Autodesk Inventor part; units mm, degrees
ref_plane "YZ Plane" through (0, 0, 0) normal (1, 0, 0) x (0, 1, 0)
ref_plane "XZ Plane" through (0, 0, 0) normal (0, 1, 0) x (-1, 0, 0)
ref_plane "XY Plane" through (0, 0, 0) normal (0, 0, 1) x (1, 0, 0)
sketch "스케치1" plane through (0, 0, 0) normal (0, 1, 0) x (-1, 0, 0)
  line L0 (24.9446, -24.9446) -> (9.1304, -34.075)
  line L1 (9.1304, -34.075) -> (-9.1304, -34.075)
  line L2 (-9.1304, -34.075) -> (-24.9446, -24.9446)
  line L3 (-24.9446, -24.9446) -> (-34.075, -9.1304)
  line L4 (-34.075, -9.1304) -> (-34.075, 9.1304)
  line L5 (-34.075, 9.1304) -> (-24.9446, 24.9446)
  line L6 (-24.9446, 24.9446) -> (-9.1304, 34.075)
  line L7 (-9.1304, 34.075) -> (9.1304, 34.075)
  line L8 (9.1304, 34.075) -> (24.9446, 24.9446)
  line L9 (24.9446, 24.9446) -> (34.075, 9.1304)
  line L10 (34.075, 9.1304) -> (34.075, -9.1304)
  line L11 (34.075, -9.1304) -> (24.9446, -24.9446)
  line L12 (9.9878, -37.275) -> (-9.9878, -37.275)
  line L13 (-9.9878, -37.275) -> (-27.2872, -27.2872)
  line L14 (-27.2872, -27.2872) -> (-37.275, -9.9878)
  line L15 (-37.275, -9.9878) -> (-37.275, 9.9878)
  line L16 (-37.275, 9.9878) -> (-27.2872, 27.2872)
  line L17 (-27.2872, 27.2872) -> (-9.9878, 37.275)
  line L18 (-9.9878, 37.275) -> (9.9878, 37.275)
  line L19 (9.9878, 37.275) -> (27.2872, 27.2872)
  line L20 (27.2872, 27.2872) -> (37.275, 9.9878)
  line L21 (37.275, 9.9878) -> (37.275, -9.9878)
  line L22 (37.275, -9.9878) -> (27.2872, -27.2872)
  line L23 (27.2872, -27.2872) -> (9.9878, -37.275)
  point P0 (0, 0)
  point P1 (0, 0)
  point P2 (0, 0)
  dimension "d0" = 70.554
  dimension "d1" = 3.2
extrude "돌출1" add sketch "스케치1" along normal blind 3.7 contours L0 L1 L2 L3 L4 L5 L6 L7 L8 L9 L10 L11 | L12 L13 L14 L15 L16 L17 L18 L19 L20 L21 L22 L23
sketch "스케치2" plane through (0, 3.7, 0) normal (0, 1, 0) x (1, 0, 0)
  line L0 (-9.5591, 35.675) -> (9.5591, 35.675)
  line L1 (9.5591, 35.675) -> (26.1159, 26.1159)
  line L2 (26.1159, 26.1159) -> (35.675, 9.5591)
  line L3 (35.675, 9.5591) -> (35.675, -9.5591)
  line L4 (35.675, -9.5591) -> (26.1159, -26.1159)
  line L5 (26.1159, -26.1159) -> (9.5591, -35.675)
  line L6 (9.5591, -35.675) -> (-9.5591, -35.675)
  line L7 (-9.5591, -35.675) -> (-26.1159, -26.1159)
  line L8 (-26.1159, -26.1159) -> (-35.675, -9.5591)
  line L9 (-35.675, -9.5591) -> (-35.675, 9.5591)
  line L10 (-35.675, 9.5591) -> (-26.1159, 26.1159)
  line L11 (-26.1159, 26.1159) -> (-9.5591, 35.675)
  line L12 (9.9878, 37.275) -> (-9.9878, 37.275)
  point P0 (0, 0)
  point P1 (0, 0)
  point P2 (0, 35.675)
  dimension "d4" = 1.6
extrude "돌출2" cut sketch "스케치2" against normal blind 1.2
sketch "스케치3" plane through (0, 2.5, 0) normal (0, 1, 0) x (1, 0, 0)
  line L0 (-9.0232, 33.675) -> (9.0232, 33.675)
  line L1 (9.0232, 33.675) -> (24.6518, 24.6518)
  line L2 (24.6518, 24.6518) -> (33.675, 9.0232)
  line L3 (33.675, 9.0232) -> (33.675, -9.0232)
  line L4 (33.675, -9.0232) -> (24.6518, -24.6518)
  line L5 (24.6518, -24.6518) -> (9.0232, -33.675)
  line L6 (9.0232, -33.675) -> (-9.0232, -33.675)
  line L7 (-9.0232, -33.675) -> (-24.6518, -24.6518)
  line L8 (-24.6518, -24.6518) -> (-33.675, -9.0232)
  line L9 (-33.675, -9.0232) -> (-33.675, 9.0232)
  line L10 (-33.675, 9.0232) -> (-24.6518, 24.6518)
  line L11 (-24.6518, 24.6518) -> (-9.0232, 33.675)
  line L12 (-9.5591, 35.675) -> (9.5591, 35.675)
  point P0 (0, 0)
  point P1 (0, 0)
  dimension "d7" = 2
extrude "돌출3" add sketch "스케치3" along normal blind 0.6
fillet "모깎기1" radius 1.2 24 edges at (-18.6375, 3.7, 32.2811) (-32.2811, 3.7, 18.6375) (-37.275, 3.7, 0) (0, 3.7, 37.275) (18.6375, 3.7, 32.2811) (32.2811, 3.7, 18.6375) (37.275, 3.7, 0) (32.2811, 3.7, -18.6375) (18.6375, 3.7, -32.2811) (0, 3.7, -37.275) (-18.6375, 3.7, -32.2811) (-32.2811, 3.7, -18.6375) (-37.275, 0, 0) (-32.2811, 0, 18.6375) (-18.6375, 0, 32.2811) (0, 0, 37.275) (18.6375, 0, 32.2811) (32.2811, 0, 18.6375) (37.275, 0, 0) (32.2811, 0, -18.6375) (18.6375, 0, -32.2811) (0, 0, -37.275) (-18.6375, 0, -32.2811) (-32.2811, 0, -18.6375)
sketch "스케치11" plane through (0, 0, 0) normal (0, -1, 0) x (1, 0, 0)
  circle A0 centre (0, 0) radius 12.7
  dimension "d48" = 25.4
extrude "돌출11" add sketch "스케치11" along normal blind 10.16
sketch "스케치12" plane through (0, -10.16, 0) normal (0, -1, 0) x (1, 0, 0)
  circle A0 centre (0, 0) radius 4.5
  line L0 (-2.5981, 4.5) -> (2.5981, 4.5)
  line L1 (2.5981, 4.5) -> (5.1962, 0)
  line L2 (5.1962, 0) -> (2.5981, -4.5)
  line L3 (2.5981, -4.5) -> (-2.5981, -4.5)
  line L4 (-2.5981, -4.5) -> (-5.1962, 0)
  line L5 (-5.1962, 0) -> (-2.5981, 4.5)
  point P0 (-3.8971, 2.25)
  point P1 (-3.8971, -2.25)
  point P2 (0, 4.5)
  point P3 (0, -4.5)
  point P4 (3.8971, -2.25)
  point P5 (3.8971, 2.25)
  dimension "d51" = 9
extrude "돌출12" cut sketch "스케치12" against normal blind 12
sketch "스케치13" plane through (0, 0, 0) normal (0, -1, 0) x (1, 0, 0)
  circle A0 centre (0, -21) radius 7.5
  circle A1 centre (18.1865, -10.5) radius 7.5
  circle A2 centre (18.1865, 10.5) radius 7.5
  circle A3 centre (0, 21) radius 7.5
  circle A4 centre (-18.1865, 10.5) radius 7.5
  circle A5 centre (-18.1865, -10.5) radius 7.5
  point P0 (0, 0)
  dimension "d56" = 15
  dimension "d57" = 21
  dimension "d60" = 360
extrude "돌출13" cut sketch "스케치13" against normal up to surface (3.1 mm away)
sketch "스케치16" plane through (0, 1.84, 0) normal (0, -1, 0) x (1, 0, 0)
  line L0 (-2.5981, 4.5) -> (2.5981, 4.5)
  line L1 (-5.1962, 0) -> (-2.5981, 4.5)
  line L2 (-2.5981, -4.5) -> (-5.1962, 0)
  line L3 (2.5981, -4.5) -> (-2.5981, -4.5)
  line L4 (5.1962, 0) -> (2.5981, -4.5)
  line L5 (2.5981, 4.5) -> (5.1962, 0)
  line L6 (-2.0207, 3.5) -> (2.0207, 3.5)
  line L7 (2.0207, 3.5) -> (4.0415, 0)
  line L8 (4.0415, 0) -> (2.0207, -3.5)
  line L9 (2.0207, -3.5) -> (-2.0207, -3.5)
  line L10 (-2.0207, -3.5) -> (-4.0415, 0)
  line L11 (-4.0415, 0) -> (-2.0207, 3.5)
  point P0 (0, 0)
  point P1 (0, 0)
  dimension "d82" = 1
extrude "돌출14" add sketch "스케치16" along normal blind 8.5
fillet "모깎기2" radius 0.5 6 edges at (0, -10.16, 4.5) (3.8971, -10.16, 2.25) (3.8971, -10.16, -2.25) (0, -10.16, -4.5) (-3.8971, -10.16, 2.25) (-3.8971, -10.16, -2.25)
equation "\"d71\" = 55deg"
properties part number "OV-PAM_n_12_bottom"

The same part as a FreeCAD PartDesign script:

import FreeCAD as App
import Part
import Sketcher
from FreeCAD import Vector
Q = App.Units.Quantity


def edges_at(feature, points):
    """Names of the edges that pass closest to the given points."""
    edges = feature.Shape.Edges
    near = lambda p: min(range(len(edges)), key=lambda i: edges[i].distToShape(Part.Vertex(*p))[0])
    return sorted({f"Edge{near(p) + 1}" for p in points})

doc = App.newDocument("Part")
body = doc.addObject("PartDesign::Body", "Body")

# Sketch on XZ plane
sketch1 = body.newObject("Sketcher::SketchObject", "Sketch")
sketch1.AttachmentSupport = (doc.getObject("XZ_Plane"), [""])
sketch1.MapMode = "FlatFace"
sketch1.addGeometry(Part.LineSegment(Vector(10, -37, 0), Vector(-10, -37, 0)), False)
sketch1.addGeometry(Part.LineSegment(Vector(-10, -37, 0), Vector(-27, -27, 0)), False)
sketch1.addGeometry(Part.LineSegment(Vector(-27, -27, 0), Vector(-37, -10, 0)), False)
sketch1.addGeometry(Part.LineSegment(Vector(-37, -10, 0), Vector(-37, 10, 0)), False)
sketch1.addGeometry(Part.LineSegment(Vector(-37, 10, 0), Vector(-27, 27, 0)), False)
sketch1.addGeometry(Part.LineSegment(Vector(-27, 27, 0), Vector(-10, 37, 0)), False)
sketch1.addGeometry(Part.LineSegment(Vector(-10, 37, 0), Vector(10, 37, 0)), False)
sketch1.addGeometry(Part.LineSegment(Vector(10, 37, 0), Vector(27, 27, 0)), False)
sketch1.addGeometry(Part.LineSegment(Vector(27, 27, 0), Vector(37, 10, 0)), False)
sketch1.addGeometry(Part.LineSegment(Vector(37, 10, 0), Vector(37, -10, 0)), False)
sketch1.addGeometry(Part.LineSegment(Vector(37, -10, 0), Vector(27, -27, 0)), False)
sketch1.addGeometry(Part.LineSegment(Vector(27, -27, 0), Vector(10, -37, 0)), False)
sketch1.addConstraint(Sketcher.Constraint("Coincident", 0, 2, 1, 1))
sketch1.addConstraint(Sketcher.Constraint("Coincident", 1, 2, 2, 1))
sketch1.addConstraint(Sketcher.Constraint("Coincident", 2, 2, 3, 1))
sketch1.addConstraint(Sketcher.Constraint("Coincident", 3, 2, 4, 1))
sketch1.addConstraint(Sketcher.Constraint("Coincident", 4, 2, 5, 1))
sketch1.addConstraint(Sketcher.Constraint("Coincident", 5, 2, 6, 1))
sketch1.addConstraint(Sketcher.Constraint("Coincident", 6, 2, 7, 1))
sketch1.addConstraint(Sketcher.Constraint("Coincident", 7, 2, 8, 1))
sketch1.addConstraint(Sketcher.Constraint("Coincident", 8, 2, 9, 1))
sketch1.addConstraint(Sketcher.Constraint("Coincident", 9, 2, 10, 1))
sketch1.addConstraint(Sketcher.Constraint("Coincident", 10, 2, 11, 1))
sketch1.addConstraint(Sketcher.Constraint("Coincident", 11, 2, 0, 1))
sketch1.addConstraint(Sketcher.Constraint("Horizontal", 0))
sketch1.addConstraint(Sketcher.Constraint("Vertical", 3))
sketch1.addConstraint(Sketcher.Constraint("Horizontal", 6))
sketch1.addConstraint(Sketcher.Constraint("Vertical", 9))
sketch1.addConstraint(Sketcher.Constraint("Symmetric", 0, 2, 6, 2, -1, 1))
sketch1.addConstraint(Sketcher.Constraint("Symmetric", 1, 2, 7, 2, -1, 1))
sketch1.addConstraint(Sketcher.Constraint("Symmetric", 2, 2, 8, 2, -1, 1))
sketch1.addConstraint(Sketcher.Constraint("Symmetric", 4, 2, 10, 2, -1, 1))
sketch1.addConstraint(Sketcher.Constraint("Symmetric", 4, 2, 7, 2, -2))
sketch1.addConstraint(Sketcher.Constraint("Perpendicular", 1, 4))
sketch1.addConstraint(Sketcher.Constraint("Perpendicular", 2, 5))
sketch1.addConstraint(Sketcher.Constraint("Perpendicular", 7, 10))
sketch1.addConstraint(Sketcher.Constraint("Perpendicular", 8, 11))
sketch1.addConstraint(Sketcher.Constraint("Horizontal", 3, 2, 8, 2))
sketch1.addConstraint(Sketcher.Constraint("Equal", 6, 3))
sketch1.addConstraint(Sketcher.Constraint("Equal", 1, 2))
sketch1.addConstraint(Sketcher.Constraint("Angle", 1, Q("150 deg")))
sketch1.addConstraint(Sketcher.Constraint("DistanceY", 0, 2, 5, 2, 74.55))
sketch1.addConstraint(Sketcher.Constraint("DistanceX", 0, 2, 0, 1, 19.9756))
pad1 = body.newObject("PartDesign::Pad", "Pad")
pad1.Profile = sketch1
pad1.Length = 3.7
pad1.Reversed = True

# Sketch on XZ plane
sketch2 = body.newObject("Sketcher::SketchObject", "Sketch001")
sketch2.AttachmentSupport = (doc.getObject("XZ_Plane"), [""])
sketch2.MapMode = "FlatFace"
sketch2.AttachmentOffset = App.Placement(Vector(0, 0, -3.7), App.Rotation())
sketch2.addGeometry(Part.LineSegment(Vector(10, -36, 0), Vector(-10, -36, 0)), False)
sketch2.addGeometry(Part.LineSegment(Vector(-10, -36, 0), Vector(-26, -26, 0)), False)
sketch2.addGeometry(Part.LineSegment(Vector(-26, -26, 0), Vector(-36, -10, 0)), False)
sketch2.addGeometry(Part.LineSegment(Vector(-36, -10, 0), Vector(-36, 10, 0)), False)
sketch2.addGeometry(Part.LineSegment(Vector(-36, 10, 0), Vector(-26, 26, 0)), False)
sketch2.addGeometry(Part.LineSegment(Vector(-26, 26, 0), Vector(-10, 36, 0)), False)
sketch2.addGeometry(Part.LineSegment(Vector(-10, 36, 0), Vector(10, 36, 0)), False)
sketch2.addGeometry(Part.LineSegment(Vector(10, 36, 0), Vector(26, 26, 0)), False)
sketch2.addGeometry(Part.LineSegment(Vector(26, 26, 0), Vector(36, 10, 0)), False)
sketch2.addGeometry(Part.LineSegment(Vector(36, 10, 0), Vector(36, -10, 0)), False)
sketch2.addGeometry(Part.LineSegment(Vector(36, -10, 0), Vector(26, -26, 0)), False)
sketch2.addGeometry(Part.LineSegment(Vector(26, -26, 0), Vector(10, -36, 0)), False)
sketch2.addConstraint(Sketcher.Constraint("Coincident", 0, 2, 1, 1))
sketch2.addConstraint(Sketcher.Constraint("Coincident", 1, 2, 2, 1))
sketch2.addConstraint(Sketcher.Constraint("Coincident", 2, 2, 3, 1))
sketch2.addConstraint(Sketcher.Constraint("Coincident", 3, 2, 4, 1))
sketch2.addConstraint(Sketcher.Constraint("Coincident", 4, 2, 5, 1))
sketch2.addConstraint(Sketcher.Constraint("Coincident", 5, 2, 6, 1))
sketch2.addConstraint(Sketcher.Constraint("Coincident", 6, 2, 7, 1))
sketch2.addConstraint(Sketcher.Constraint("Coincident", 7, 2, 8, 1))
sketch2.addConstraint(Sketcher.Constraint("Coincident", 8, 2, 9, 1))
sketch2.addConstraint(Sketcher.Constraint("Coincident", 9, 2, 10, 1))
sketch2.addConstraint(Sketcher.Constraint("Coincident", 10, 2, 11, 1))
sketch2.addConstraint(Sketcher.Constraint("Coincident", 11, 2, 0, 1))
sketch2.addConstraint(Sketcher.Constraint("Horizontal", 0))
sketch2.addConstraint(Sketcher.Constraint("Vertical", 3))
sketch2.addConstraint(Sketcher.Constraint("Horizontal", 6))
sketch2.addConstraint(Sketcher.Constraint("Vertical", 9))
sketch2.addConstraint(Sketcher.Constraint("Symmetric", 0, 2, 6, 2, -1, 1))
sketch2.addConstraint(Sketcher.Constraint("Symmetric", 1, 2, 7, 2, -1, 1))
sketch2.addConstraint(Sketcher.Constraint("Symmetric", 2, 2, 8, 2, -1, 1))
sketch2.addConstraint(Sketcher.Constraint("Symmetric", 4, 2, 10, 2, -1, 1))
sketch2.addConstraint(Sketcher.Constraint("Symmetric", 4, 2, 7, 2, -2))
sketch2.addConstraint(Sketcher.Constraint("Perpendicular", 1, 4))
sketch2.addConstraint(Sketcher.Constraint("Perpendicular", 2, 5))
sketch2.addConstraint(Sketcher.Constraint("Perpendicular", 7, 10))
sketch2.addConstraint(Sketcher.Constraint("Perpendicular", 8, 11))
sketch2.addConstraint(Sketcher.Constraint("Horizontal", 3, 2, 8, 2))
sketch2.addConstraint(Sketcher.Constraint("Equal", 6, 3))
sketch2.addConstraint(Sketcher.Constraint("Equal", 1, 2))
sketch2.addConstraint(Sketcher.Constraint("Angle", 1, Q("150 deg")))
sketch2.addConstraint(Sketcher.Constraint("DistanceY", 0, 2, 5, 2, 71.35))
sketch2.addConstraint(Sketcher.Constraint("DistanceX", 0, 2, 0, 1, 19.1182))
pocket1 = body.newObject("PartDesign::Pocket", "Pocket")
pocket1.Profile = sketch2
pocket1.Length = 1.2
pocket1.Reversed = True

# Sketch on XZ plane
sketch3 = body.newObject("Sketcher::SketchObject", "Sketch002")
sketch3.AttachmentSupport = (doc.getObject("XZ_Plane"), [""])
sketch3.MapMode = "FlatFace"
sketch3.AttachmentOffset = App.Placement(Vector(0, 0, -2.5), App.Rotation())
sketch3.addGeometry(Part.LineSegment(Vector(9, -34, 0), Vector(-9, -34, 0)), False)
sketch3.addGeometry(Part.LineSegment(Vector(-9, -34, 0), Vector(-25, -25, 0)), False)
sketch3.addGeometry(Part.LineSegment(Vector(-25, -25, 0), Vector(-34, -9, 0)), False)
sketch3.addGeometry(Part.LineSegment(Vector(-34, -9, 0), Vector(-34, 9, 0)), False)
sketch3.addGeometry(Part.LineSegment(Vector(-34, 9, 0), Vector(-25, 25, 0)), False)
sketch3.addGeometry(Part.LineSegment(Vector(-25, 25, 0), Vector(-9, 34, 0)), False)
sketch3.addGeometry(Part.LineSegment(Vector(-9, 34, 0), Vector(9, 34, 0)), False)
sketch3.addGeometry(Part.LineSegment(Vector(9, 34, 0), Vector(25, 25, 0)), False)
sketch3.addGeometry(Part.LineSegment(Vector(25, 25, 0), Vector(34, 9, 0)), False)
sketch3.addGeometry(Part.LineSegment(Vector(34, 9, 0), Vector(34, -9, 0)), False)
sketch3.addGeometry(Part.LineSegment(Vector(34, -9, 0), Vector(25, -25, 0)), False)
sketch3.addGeometry(Part.LineSegment(Vector(25, -25, 0), Vector(9, -34, 0)), False)
sketch3.addConstraint(Sketcher.Constraint("Coincident", 0, 2, 1, 1))
sketch3.addConstraint(Sketcher.Constraint("Coincident", 1, 2, 2, 1))
sketch3.addConstraint(Sketcher.Constraint("Coincident", 2, 2, 3, 1))
sketch3.addConstraint(Sketcher.Constraint("Coincident", 3, 2, 4, 1))
sketch3.addConstraint(Sketcher.Constraint("Coincident", 4, 2, 5, 1))
sketch3.addConstraint(Sketcher.Constraint("Coincident", 5, 2, 6, 1))
sketch3.addConstraint(Sketcher.Constraint("Coincident", 6, 2, 7, 1))
sketch3.addConstraint(Sketcher.Constraint("Coincident", 7, 2, 8, 1))
sketch3.addConstraint(Sketcher.Constraint("Coincident", 8, 2, 9, 1))
sketch3.addConstraint(Sketcher.Constraint("Coincident", 9, 2, 10, 1))
sketch3.addConstraint(Sketcher.Constraint("Coincident", 10, 2, 11, 1))
sketch3.addConstraint(Sketcher.Constraint("Coincident", 11, 2, 0, 1))
sketch3.addConstraint(Sketcher.Constraint("Horizontal", 0))
sketch3.addConstraint(Sketcher.Constraint("Vertical", 3))
sketch3.addConstraint(Sketcher.Constraint("Horizontal", 6))
sketch3.addConstraint(Sketcher.Constraint("Vertical", 9))
sketch3.addConstraint(Sketcher.Constraint("Symmetric", 0, 2, 6, 2, -1, 1))
sketch3.addConstraint(Sketcher.Constraint("Symmetric", 1, 2, 7, 2, -1, 1))
sketch3.addConstraint(Sketcher.Constraint("Symmetric", 2, 2, 8, 2, -1, 1))
sketch3.addConstraint(Sketcher.Constraint("Symmetric", 4, 2, 10, 2, -1, 1))
sketch3.addConstraint(Sketcher.Constraint("Symmetric", 4, 2, 7, 2, -2))
sketch3.addConstraint(Sketcher.Constraint("Perpendicular", 1, 4))
sketch3.addConstraint(Sketcher.Constraint("Perpendicular", 2, 5))
sketch3.addConstraint(Sketcher.Constraint("Perpendicular", 7, 10))
sketch3.addConstraint(Sketcher.Constraint("Perpendicular", 8, 11))
sketch3.addConstraint(Sketcher.Constraint("Horizontal", 3, 2, 8, 2))
sketch3.addConstraint(Sketcher.Constraint("Equal", 6, 3))
sketch3.addConstraint(Sketcher.Constraint("Equal", 1, 2))
sketch3.addConstraint(Sketcher.Constraint("Angle", 1, Q("150 deg")))
sketch3.addConstraint(Sketcher.Constraint("DistanceY", 0, 2, 5, 2, 67.35))
sketch3.addConstraint(Sketcher.Constraint("DistanceX", 0, 2, 0, 1, 18.0464))
pad2 = body.newObject("PartDesign::Pad", "Pad001")
pad2.Profile = sketch3
pad2.Length = 0.6
pad2.Reversed = True
doc.recompute()

fillet = body.newObject("PartDesign::Fillet", "Fillet")
fillet.Base = (pad2, edges_at(pad2, [
    (-18.637, 3.7, 32.281),
    (-32.281, 3.7, 18.637),
    (-37.275, 3.7, 0),
    (0, 3.7, 37.275),
    (18.637, 3.7, 32.281),
    (32.281, 3.7, 18.637),
    (37.275, 3.7, 0),
    (32.281, 3.7, -18.637),
    (18.637, 3.7, -32.281),
    (0, 3.7, -37.275),
    (-18.637, 3.7, -32.281),
    (-32.281, 3.7, -18.637),
    (-37.275, 0, 0),
    (-32.281, 0, 18.637),
    (-18.637, 0, 32.281),
    (0, 0, 37.275),
    (18.637, 0, 32.281),
    (32.281, 0, 18.637),
    (37.275, 0, 0),
    (32.281, 0, -18.637),
    (18.637, 0, -32.281),
    (0, 0, -37.275),
    (-18.637, 0, -32.281),
    (-32.281, 0, -18.637),
]))
fillet.Radius = 1.2

# Sketch on XZ plane
sketch4 = body.newObject("Sketcher::SketchObject", "Sketch003")
sketch4.AttachmentSupport = (doc.getObject("XZ_Plane"), [""])
sketch4.MapMode = "FlatFace"
sketch4.addGeometry(Part.Circle(Vector(0, 0, 0), Vector(0, 0, 1), 13), False)
sketch4.addConstraint(Sketcher.Constraint("Coincident", 0, 3, -1, 1))
sketch4.addConstraint(Sketcher.Constraint("Diameter", 0, 25.4))
pad3 = body.newObject("PartDesign::Pad", "Pad002")
pad3.Profile = sketch4
pad3.Length = 10.16

# Sketch on XZ plane
sketch5 = body.newObject("Sketcher::SketchObject", "Sketch004")
sketch5.AttachmentSupport = (doc.getObject("XZ_Plane"), [""])
sketch5.MapMode = "FlatFace"
sketch5.AttachmentOffset = App.Placement(Vector(0, 0, 10.16), App.Rotation())
sketch5.addGeometry(Part.LineSegment(Vector(5, 0, 0), Vector(3, 4, 0)), False)
sketch5.addGeometry(Part.LineSegment(Vector(3, 4, 0), Vector(-3, 4, 0)), False)
sketch5.addGeometry(Part.LineSegment(Vector(-3, 4, 0), Vector(-5, 0, 0)), False)
sketch5.addGeometry(Part.LineSegment(Vector(-5, 0, 0), Vector(-3, -4, 0)), False)
sketch5.addGeometry(Part.LineSegment(Vector(-3, -4, 0), Vector(3, -4, 0)), False)
sketch5.addGeometry(Part.LineSegment(Vector(3, -4, 0), Vector(5, 0, 0)), False)
sketch5.addConstraint(Sketcher.Constraint("Coincident", 0, 2, 1, 1))
sketch5.addConstraint(Sketcher.Constraint("Coincident", 1, 2, 2, 1))
sketch5.addConstraint(Sketcher.Constraint("Coincident", 2, 2, 3, 1))
sketch5.addConstraint(Sketcher.Constraint("Coincident", 3, 2, 4, 1))
sketch5.addConstraint(Sketcher.Constraint("Coincident", 4, 2, 5, 1))
sketch5.addConstraint(Sketcher.Constraint("Coincident", 5, 2, 0, 1))
sketch5.addConstraint(Sketcher.Constraint("Horizontal", 1))
sketch5.addConstraint(Sketcher.Constraint("Horizontal", 4))
sketch5.addConstraint(Sketcher.Constraint("Symmetric", 0, 2, 3, 2, -1, 1))
sketch5.addConstraint(Sketcher.Constraint("Symmetric", 2, 2, 5, 2, -1, 1))
sketch5.addConstraint(Sketcher.Constraint("PointOnObject", 2, 2, -1))
sketch5.addConstraint(Sketcher.Constraint("Parallel", 2, 5))
sketch5.addConstraint(Sketcher.Constraint("Vertical", 1, 2, 3, 2))
sketch5.addConstraint(Sketcher.Constraint("DistanceY", 3, 2, 1, 2, 9.0))
sketch5.addConstraint(Sketcher.Constraint("Angle", 0, Q("120.0002 deg")))
sketch5.addConstraint(Sketcher.Constraint("DistanceX", 1, 2, 1, 1, 5.1962))
pocket2 = body.newObject("PartDesign::Pocket", "Pocket001")
pocket2.Profile = sketch5
pocket2.Length = 12

# Sketch on XZ plane
sketch6 = body.newObject("Sketcher::SketchObject", "Sketch005")
sketch6.AttachmentSupport = (doc.getObject("XZ_Plane"), [""])
sketch6.MapMode = "FlatFace"
sketch6.addGeometry(Part.Circle(Vector(0, -21, 0), Vector(0, 0, 1), 8), False)
sketch6.addGeometry(Part.Circle(Vector(18, -10, 0), Vector(0, 0, 1), 8), False)
sketch6.addGeometry(Part.Circle(Vector(18, 10, 0), Vector(0, 0, 1), 8), False)
sketch6.addGeometry(Part.Circle(Vector(0, 21, 0), Vector(0, 0, 1), 8), False)
sketch6.addGeometry(Part.Circle(Vector(-18, 10, 0), Vector(0, 0, 1), 8), False)
sketch6.addGeometry(Part.Circle(Vector(-18, -10, 0), Vector(0, 0, 1), 8), False)
sketch6.addConstraint(Sketcher.Constraint("Equal", 0, 1))
sketch6.addConstraint(Sketcher.Constraint("Equal", 1, 2))
sketch6.addConstraint(Sketcher.Constraint("Equal", 2, 3))
sketch6.addConstraint(Sketcher.Constraint("Equal", 3, 4))
sketch6.addConstraint(Sketcher.Constraint("Equal", 4, 5))
sketch6.addConstraint(Sketcher.Constraint("Symmetric", 0, 3, 3, 3, -1, 1))
sketch6.addConstraint(Sketcher.Constraint("Symmetric", 1, 3, 4, 3, -1, 1))
sketch6.addConstraint(Sketcher.Constraint("Symmetric", 2, 3, 5, 3, -1, 1))
sketch6.addConstraint(Sketcher.Constraint("Symmetric", 2, 3, 4, 3, -2))
sketch6.addConstraint(Sketcher.Constraint("PointOnObject", 0, 3, -2))
sketch6.addConstraint(Sketcher.Constraint("Diameter", 0, 15.0))
sketch6.addConstraint(Sketcher.Constraint("DistanceY", 0, 3, -1, 1, 21.0))
sketch6.addConstraint(Sketcher.Constraint("DistanceY", 1, 3, 2, 3, 21.0))
sketch6.addConstraint(Sketcher.Constraint("DistanceX", 4, 3, 2, 3, 36.373))
pocket3 = body.newObject("PartDesign::Pocket", "Pocket002")
pocket3.Profile = sketch6
pocket3.Length = 3.1

# Sketch on XZ plane
sketch7 = body.newObject("Sketcher::SketchObject", "Sketch006")
sketch7.AttachmentSupport = (doc.getObject("XZ_Plane"), [""])
sketch7.MapMode = "FlatFace"
sketch7.AttachmentOffset = App.Placement(Vector(0, 0, -1.84), App.Rotation())
sketch7.addGeometry(Part.LineSegment(Vector(2.6, 4.5, 0), Vector(-2.6, 4.5, 0)), False)
sketch7.addGeometry(Part.LineSegment(Vector(-2.6, 4.5, 0), Vector(-5.2, 0, 0)), False)
sketch7.addGeometry(Part.LineSegment(Vector(-5.2, 0, 0), Vector(-2.6, -4.5, 0)), False)
sketch7.addGeometry(Part.LineSegment(Vector(-2.6, -4.5, 0), Vector(2.6, -4.5, 0)), False)
sketch7.addGeometry(Part.LineSegment(Vector(2.6, -4.5, 0), Vector(5.2, 0, 0)), False)
sketch7.addGeometry(Part.LineSegment(Vector(5.2, 0, 0), Vector(2.6, 4.5, 0)), False)
sketch7.addGeometry(Part.LineSegment(Vector(-4, 0, 0), Vector(-2, 3.5, 0)), False)
sketch7.addGeometry(Part.LineSegment(Vector(-2, 3.5, 0), Vector(2, 3.5, 0)), False)
sketch7.addGeometry(Part.LineSegment(Vector(2, 3.5, 0), Vector(4, 0, 0)), False)
sketch7.addGeometry(Part.LineSegment(Vector(4, 0, 0), Vector(2, -3.5, 0)), False)
sketch7.addGeometry(Part.LineSegment(Vector(2, -3.5, 0), Vector(-2, -3.5, 0)), False)
sketch7.addGeometry(Part.LineSegment(Vector(-2, -3.5, 0), Vector(-4, 0, 0)), False)
sketch7.addConstraint(Sketcher.Constraint("Coincident", 0, 2, 1, 1))
sketch7.addConstraint(Sketcher.Constraint("Coincident", 1, 2, 2, 1))
sketch7.addConstraint(Sketcher.Constraint("Coincident", 2, 2, 3, 1))
sketch7.addConstraint(Sketcher.Constraint("Coincident", 3, 2, 4, 1))
sketch7.addConstraint(Sketcher.Constraint("Coincident", 4, 2, 5, 1))
sketch7.addConstraint(Sketcher.Constraint("Coincident", 5, 2, 0, 1))
sketch7.addConstraint(Sketcher.Constraint("Coincident", 6, 2, 7, 1))
sketch7.addConstraint(Sketcher.Constraint("Coincident", 7, 2, 8, 1))
sketch7.addConstraint(Sketcher.Constraint("Coincident", 8, 2, 9, 1))
sketch7.addConstraint(Sketcher.Constraint("Coincident", 9, 2, 10, 1))
sketch7.addConstraint(Sketcher.Constraint("Coincident", 10, 2, 11, 1))
sketch7.addConstraint(Sketcher.Constraint("Coincident", 11, 2, 6, 1))
sketch7.addConstraint(Sketcher.Constraint("Horizontal", 0))
sketch7.addConstraint(Sketcher.Constraint("Horizontal", 3))
sketch7.addConstraint(Sketcher.Constraint("Horizontal", 7))
sketch7.addConstraint(Sketcher.Constraint("Horizontal", 10))
sketch7.addConstraint(Sketcher.Constraint("Symmetric", 0, 2, 3, 2, -1, 1))
sketch7.addConstraint(Sketcher.Constraint("Symmetric", 1, 2, 4, 2, -1, 1))
sketch7.addConstraint(Sketcher.Constraint("Symmetric", 6, 2, 9, 2, -1, 1))
sketch7.addConstraint(Sketcher.Constraint("Symmetric", 8, 2, 11, 2, -1, 1))
sketch7.addConstraint(Sketcher.Constraint("PointOnObject", 1, 2, -1))
sketch7.addConstraint(Sketcher.Constraint("PointOnObject", 8, 2, -1))
sketch7.addConstraint(Sketcher.Constraint("Parallel", 2, 5))
sketch7.addConstraint(Sketcher.Constraint("Parallel", 4, 6))
sketch7.addConstraint(Sketcher.Constraint("Parallel", 5, 8))
sketch7.addConstraint(Sketcher.Constraint("Parallel", 8, 11))
sketch7.addConstraint(Sketcher.Constraint("Vertical", 0, 2, 2, 2))
sketch7.addConstraint(Sketcher.Constraint("DistanceY", 6, 2, 0, 2, 1.0))
sketch7.addConstraint(Sketcher.Constraint("Angle", 1, Q("-120.0002 deg")))
sketch7.addConstraint(Sketcher.Constraint("DistanceY", 2, 2, 0, 2, 9.0))
sketch7.addConstraint(Sketcher.Constraint("DistanceX", 0, 2, 0, 1, 5.1962))
sketch7.addConstraint(Sketcher.Constraint("DistanceX", 7, 1, 7, 2, 4.0414))
pad4 = body.newObject("PartDesign::Pad", "Pad003")
pad4.Profile = sketch7
pad4.Length = 8.5
doc.recompute()

fillet2 = body.newObject("PartDesign::Fillet", "Fillet001")
fillet2.Base = (pad4, edges_at(pad4, [
    (0, -10.16, 4.5),
    (3.897, -10.16, 2.25),
    (3.897, -10.16, -2.25),
    (0, -10.16, -4.5),
    (-3.897, -10.16, 2.25),
    (-3.897, -10.16, -2.25),
]))
fillet2.Radius = 0.5

doc.recompute()
